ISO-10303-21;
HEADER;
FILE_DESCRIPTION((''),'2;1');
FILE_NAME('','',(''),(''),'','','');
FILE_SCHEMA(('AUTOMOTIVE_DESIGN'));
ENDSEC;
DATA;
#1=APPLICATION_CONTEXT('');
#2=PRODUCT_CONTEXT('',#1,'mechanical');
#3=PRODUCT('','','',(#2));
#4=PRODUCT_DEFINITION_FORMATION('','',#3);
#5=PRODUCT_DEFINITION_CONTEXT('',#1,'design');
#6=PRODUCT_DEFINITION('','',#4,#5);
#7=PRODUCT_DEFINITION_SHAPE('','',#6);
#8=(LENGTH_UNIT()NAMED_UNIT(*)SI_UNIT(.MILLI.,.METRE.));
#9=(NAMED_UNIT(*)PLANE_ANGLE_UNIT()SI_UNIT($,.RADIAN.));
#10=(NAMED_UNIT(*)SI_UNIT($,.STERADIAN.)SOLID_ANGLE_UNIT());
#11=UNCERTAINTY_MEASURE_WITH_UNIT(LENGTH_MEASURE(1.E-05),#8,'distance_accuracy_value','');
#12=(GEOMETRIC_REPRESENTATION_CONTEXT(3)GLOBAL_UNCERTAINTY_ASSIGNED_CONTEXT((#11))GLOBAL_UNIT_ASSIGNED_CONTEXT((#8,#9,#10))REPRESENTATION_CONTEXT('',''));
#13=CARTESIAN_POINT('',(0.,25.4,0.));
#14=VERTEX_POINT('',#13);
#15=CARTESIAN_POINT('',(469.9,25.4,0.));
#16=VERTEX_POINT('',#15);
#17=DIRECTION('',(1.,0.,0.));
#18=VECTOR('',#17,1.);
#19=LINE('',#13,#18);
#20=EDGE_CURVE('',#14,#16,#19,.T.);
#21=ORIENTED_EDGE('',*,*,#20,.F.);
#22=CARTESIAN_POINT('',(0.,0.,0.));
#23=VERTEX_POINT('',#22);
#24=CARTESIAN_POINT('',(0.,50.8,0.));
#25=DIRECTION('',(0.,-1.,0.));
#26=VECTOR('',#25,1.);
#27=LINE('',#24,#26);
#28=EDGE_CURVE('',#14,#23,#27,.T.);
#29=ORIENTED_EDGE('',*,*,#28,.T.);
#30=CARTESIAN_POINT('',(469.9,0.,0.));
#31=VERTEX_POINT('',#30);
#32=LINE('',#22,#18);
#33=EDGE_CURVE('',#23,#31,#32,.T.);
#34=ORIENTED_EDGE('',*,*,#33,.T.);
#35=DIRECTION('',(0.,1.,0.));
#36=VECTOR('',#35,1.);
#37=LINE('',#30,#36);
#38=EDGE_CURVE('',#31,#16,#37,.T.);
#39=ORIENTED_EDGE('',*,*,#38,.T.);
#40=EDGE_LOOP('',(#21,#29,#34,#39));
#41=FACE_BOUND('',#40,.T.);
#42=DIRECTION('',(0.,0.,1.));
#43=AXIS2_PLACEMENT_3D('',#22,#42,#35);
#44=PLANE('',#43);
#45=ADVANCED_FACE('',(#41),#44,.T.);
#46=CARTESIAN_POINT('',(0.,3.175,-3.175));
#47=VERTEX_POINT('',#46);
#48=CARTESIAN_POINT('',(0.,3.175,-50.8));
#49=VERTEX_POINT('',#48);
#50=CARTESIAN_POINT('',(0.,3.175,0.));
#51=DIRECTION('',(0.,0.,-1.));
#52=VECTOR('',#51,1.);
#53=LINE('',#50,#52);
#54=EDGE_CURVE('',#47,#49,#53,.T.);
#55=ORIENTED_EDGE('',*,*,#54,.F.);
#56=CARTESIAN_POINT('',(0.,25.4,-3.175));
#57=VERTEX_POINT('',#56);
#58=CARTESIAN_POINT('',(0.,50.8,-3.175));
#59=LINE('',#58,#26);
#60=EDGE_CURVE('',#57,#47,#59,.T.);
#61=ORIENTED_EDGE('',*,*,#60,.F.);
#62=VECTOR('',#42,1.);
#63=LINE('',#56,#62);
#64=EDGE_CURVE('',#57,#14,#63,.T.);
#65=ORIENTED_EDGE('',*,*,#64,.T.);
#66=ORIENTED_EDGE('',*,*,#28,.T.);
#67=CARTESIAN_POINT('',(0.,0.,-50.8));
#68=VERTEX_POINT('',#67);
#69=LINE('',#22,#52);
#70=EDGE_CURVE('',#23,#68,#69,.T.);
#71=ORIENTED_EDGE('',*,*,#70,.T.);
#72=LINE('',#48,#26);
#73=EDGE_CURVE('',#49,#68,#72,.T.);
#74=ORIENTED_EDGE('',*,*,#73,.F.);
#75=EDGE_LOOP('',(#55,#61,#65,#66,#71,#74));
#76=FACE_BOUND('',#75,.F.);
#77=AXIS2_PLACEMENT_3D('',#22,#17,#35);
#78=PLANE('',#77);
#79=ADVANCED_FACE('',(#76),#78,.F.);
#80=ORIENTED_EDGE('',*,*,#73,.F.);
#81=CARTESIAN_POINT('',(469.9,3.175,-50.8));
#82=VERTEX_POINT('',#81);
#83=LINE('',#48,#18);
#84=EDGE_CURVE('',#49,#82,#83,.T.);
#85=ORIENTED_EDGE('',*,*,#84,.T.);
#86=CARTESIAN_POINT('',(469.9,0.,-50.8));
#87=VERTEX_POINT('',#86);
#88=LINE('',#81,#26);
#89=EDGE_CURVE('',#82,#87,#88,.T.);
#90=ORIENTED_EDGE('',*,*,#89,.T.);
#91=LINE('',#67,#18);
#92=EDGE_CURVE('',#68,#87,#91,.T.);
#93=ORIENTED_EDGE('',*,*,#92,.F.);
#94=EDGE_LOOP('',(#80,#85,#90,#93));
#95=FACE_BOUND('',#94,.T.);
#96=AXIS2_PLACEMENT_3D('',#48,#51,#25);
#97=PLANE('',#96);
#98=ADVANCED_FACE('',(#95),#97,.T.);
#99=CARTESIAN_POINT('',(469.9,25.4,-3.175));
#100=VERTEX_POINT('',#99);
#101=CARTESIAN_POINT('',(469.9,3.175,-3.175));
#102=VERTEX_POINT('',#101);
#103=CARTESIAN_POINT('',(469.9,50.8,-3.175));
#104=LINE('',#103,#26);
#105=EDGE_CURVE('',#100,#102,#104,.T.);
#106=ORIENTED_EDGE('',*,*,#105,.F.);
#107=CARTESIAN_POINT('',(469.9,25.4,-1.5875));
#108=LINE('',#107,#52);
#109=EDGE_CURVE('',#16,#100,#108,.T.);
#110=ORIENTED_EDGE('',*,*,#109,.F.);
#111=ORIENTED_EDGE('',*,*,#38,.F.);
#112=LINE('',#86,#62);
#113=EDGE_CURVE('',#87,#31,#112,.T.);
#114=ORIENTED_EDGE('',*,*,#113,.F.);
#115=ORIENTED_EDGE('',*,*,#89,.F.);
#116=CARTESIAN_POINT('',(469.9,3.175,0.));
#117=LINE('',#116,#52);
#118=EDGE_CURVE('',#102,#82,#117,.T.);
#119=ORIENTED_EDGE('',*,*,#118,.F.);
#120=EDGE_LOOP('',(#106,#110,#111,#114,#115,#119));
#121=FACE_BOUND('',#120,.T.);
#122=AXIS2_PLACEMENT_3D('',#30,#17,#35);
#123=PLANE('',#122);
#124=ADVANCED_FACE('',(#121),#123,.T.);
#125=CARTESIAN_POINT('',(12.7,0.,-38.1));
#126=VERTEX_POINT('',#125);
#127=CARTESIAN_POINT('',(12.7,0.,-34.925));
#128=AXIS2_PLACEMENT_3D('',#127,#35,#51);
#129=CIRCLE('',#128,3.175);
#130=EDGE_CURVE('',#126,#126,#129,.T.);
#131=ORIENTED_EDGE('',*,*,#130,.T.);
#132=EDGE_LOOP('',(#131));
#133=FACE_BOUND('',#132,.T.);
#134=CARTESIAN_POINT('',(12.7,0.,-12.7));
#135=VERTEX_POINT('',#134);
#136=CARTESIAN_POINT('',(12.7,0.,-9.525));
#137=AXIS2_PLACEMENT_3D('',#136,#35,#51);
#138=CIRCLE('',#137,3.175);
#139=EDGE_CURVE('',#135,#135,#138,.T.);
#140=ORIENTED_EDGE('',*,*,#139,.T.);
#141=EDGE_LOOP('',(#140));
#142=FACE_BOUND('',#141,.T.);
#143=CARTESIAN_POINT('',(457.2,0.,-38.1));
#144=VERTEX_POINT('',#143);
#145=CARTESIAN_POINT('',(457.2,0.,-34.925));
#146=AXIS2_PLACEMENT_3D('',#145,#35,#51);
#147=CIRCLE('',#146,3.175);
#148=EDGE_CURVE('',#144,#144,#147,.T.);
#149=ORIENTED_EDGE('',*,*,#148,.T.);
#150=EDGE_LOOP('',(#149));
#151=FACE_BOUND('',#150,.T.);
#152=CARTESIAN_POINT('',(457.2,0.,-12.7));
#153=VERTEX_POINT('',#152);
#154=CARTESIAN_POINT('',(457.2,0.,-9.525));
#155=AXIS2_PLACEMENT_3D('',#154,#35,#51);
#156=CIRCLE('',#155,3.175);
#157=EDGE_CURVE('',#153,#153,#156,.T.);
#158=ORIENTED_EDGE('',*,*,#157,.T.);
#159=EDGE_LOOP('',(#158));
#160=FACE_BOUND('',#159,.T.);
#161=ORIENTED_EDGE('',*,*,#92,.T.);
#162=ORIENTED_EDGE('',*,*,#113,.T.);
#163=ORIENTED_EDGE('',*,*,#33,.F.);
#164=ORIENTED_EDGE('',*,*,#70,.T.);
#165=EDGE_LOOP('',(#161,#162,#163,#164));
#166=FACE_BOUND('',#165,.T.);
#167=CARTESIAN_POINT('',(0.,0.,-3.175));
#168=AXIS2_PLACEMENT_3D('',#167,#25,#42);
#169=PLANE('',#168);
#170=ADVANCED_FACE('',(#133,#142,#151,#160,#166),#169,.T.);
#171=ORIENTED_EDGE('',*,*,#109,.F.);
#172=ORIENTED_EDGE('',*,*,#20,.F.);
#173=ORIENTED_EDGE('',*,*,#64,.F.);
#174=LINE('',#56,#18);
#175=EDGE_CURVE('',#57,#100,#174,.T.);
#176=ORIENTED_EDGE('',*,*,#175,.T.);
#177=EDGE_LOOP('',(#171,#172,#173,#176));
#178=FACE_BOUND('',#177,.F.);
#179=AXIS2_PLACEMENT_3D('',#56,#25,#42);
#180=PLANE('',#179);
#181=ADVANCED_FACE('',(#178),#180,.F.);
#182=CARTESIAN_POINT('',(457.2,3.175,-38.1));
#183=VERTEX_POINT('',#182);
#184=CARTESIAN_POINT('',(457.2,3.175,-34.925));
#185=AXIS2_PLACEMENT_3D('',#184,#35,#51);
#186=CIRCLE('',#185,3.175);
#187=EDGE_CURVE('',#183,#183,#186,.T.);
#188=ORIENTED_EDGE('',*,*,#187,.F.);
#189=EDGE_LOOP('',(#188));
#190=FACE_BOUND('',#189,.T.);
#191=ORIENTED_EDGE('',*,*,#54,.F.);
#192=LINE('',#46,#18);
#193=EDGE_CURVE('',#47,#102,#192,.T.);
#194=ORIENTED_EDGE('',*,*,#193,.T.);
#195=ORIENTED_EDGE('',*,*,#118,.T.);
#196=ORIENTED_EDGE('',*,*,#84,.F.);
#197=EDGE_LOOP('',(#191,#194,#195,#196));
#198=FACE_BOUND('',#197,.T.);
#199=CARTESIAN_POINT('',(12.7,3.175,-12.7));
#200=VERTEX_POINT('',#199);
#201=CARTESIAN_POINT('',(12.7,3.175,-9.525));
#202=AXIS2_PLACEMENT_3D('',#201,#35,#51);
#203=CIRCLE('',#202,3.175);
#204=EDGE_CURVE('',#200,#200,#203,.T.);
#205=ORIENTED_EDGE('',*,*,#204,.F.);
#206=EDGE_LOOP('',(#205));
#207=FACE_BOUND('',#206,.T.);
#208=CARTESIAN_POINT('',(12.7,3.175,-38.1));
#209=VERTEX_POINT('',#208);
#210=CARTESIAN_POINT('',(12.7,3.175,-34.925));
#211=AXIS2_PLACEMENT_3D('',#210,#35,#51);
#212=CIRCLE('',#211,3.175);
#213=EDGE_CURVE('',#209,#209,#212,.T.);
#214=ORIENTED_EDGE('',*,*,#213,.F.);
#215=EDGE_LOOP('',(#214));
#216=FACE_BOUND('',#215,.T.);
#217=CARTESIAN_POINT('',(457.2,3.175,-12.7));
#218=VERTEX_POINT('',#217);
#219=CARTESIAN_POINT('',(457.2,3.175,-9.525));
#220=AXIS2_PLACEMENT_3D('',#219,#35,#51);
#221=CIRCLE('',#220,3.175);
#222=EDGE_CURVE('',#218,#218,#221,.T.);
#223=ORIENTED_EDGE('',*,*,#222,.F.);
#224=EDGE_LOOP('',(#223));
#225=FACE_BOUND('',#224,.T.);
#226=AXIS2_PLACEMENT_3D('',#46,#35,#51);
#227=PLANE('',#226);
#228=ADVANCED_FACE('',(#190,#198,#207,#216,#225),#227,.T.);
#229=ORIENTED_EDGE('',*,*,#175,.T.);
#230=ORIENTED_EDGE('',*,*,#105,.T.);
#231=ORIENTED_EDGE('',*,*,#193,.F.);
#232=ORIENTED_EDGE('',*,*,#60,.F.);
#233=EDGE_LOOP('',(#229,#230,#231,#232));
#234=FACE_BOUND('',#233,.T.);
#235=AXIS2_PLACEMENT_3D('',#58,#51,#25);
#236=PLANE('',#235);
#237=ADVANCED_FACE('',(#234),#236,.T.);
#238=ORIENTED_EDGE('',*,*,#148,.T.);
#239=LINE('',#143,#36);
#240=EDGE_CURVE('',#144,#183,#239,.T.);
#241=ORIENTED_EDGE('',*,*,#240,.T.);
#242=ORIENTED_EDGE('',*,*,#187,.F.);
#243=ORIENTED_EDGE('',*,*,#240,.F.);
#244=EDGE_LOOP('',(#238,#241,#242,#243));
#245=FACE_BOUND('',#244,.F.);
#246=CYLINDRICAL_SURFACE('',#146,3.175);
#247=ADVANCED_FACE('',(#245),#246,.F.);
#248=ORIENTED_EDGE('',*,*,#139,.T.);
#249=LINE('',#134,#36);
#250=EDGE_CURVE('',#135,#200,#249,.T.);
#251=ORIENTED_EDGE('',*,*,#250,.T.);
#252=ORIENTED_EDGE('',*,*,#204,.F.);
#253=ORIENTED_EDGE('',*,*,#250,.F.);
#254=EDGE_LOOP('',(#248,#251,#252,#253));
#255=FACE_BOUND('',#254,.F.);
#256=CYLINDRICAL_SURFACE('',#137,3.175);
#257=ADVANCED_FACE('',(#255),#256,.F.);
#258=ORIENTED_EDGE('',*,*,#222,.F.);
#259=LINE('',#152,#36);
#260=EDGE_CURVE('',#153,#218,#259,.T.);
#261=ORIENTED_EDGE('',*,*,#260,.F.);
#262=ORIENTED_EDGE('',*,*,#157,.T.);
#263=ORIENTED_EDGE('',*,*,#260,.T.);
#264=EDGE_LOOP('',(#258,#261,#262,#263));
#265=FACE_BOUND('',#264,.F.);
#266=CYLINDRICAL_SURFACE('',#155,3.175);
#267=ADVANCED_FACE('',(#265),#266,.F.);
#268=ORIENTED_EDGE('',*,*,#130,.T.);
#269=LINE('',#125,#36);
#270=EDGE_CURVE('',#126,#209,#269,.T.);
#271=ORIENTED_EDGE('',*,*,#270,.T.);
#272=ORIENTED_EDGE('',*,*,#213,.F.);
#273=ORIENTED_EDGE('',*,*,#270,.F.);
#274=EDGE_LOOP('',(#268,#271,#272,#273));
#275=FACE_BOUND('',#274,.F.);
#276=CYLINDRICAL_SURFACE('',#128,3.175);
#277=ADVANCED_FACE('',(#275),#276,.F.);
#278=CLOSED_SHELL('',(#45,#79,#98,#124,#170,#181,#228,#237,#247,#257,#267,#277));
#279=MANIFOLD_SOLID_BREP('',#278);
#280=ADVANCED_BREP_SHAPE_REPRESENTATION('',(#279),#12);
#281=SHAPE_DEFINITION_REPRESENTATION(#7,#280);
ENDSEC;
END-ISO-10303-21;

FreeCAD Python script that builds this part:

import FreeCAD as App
import Part
import Sketcher

V = App.Vector
Q = App.Units.Quantity


def add_polygon(sketch, points):
    """Adds a closed chain of lines whose ends are joined by coincident constraints."""
    first, n = sketch.GeometryCount, len(points)
    for a, b in zip(points, points[1:] + points[:1]):
        sketch.addGeometry(Part.LineSegment(App.Vector(*a, 0), App.Vector(*b, 0)), False)
    for i in range(n):
        sketch.addConstraint(Sketcher.Constraint("Coincident", first + i, 2, first + (i + 1) % n, 1))

doc = App.newDocument("Part")
body = doc.addObject("PartDesign::Body", "Body")

sketch1 = body.newObject("Sketcher::SketchObject", "Sketch")
sketch1.AttachmentSupport = (doc.getObject("YZ_Plane"), [""])
sketch1.MapMode = "FlatFace"
add_polygon(sketch1, [(0, 0), (0, -50.8), (3.2, -50.8), (3.2, -3.2), (50.8, -3.2), (50.8, 0)])
sketch1.addConstraint([
    Sketcher.Constraint("Vertical", 0),
    Sketcher.Constraint("Horizontal", 1),
    Sketcher.Constraint("Vertical", 2),
    Sketcher.Constraint("Horizontal", 3),
    Sketcher.Constraint("Vertical", 4),
    Sketcher.Constraint("Horizontal", 5),
    Sketcher.Constraint("Coincident", 5, 2, -1, 1),
    Sketcher.Constraint("Equal", 5, 0),
    Sketcher.Constraint("Equal", 3, 2),
    Sketcher.Constraint("DistanceX", 5, 2, 5, 1, Q("2 in")),
    Sketcher.Constraint("DistanceX", 1, 1, 1, 2, Q("0.125 in")),
])
pad1 = body.newObject("PartDesign::Pad", "Pad")
pad1.Profile = sketch1
pad1.Length = Q("18.5 in")

sketch2 = body.newObject("Sketcher::SketchObject", "Sketch001")
sketch2.AttachmentSupport = (doc.getObject("XZ_Plane"), [""])
sketch2.MapMode = "FlatFace"
sketch2.addGeometry([
    Part.Circle(V(12.7, -9.5, 0), V(0, 0, 1), 3.2),
    Part.Circle(V(12.7, -34.9, 0), V(0, 0, 1), 3.2),
    Part.Circle(V(457.2, -9.5, 0), V(0, 0, 1), 3.2),
    Part.Circle(V(457.2, -34.9, 0), V(0, 0, 1), 3.2),
], False)
sketch2.addConstraint([
    Sketcher.Constraint("Equal", 0, 1),
    Sketcher.Constraint("Equal", 1, 2),
    Sketcher.Constraint("Equal", 2, 3),
    Sketcher.Constraint("Horizontal", 0, 3, 2, 3),
    Sketcher.Constraint("Horizontal", 1, 3, 3, 3),
    Sketcher.Constraint("Vertical", 0, 3, 1, 3),
    Sketcher.Constraint("Vertical", 2, 3, 3, 3),
    Sketcher.Constraint("Diameter", 0, Q("0.25 in")),
    Sketcher.Constraint("DistanceX", -1, 1, 2, 3, Q("18 in")),
    Sketcher.Constraint("DistanceY", 1, 3, 0, 3, Q("1 in")),
    Sketcher.Constraint("DistanceX", -1, 1, 0, 3, Q("0.5 in")),
    Sketcher.Constraint("DistanceY", 0, 3, -1, 1, Q("0.375 in")),
])
doc.recompute()
hole = body.newObject("PartDesign::Hole", "Hole")
hole.Profile = sketch2
hole.ThreadType = "None"
hole.Diameter = Q("0.25 in")
hole.DepthType = "ThroughAll"

sketch3 = body.newObject("Sketcher::SketchObject", "Sketch002")
sketch3.AttachmentSupport = (doc.getObject("YZ_Plane"), [""])
sketch3.MapMode = "FlatFace"
add_polygon(sketch3, [(25.4, -3.2), (25.4, 0), (50.8, 0), (50.8, -3.2)])
sketch3.addConstraint([
    Sketcher.Constraint("Vertical", 0),
    Sketcher.Constraint("Horizontal", 1),
    Sketcher.Constraint("Vertical", 2),
    Sketcher.Constraint("Horizontal", 3),
    Sketcher.Constraint("PointOnObject", 0, 2, -1),
    Sketcher.Constraint("DistanceX", 1, 1, 1, 2, Q("1 in")),
    Sketcher.Constraint("DistanceX", -1, 1, 0, 2, Q("1 in")),
    Sketcher.Constraint("DistanceY", 0, 1, 0, 2, Q("0.125 in")),
])
pocket1 = body.newObject("PartDesign::Pocket", "Pocket")
pocket1.Profile = sketch3
pocket1.Length = Q("26 in")
pocket1.Reversed = True

doc.recompute()
